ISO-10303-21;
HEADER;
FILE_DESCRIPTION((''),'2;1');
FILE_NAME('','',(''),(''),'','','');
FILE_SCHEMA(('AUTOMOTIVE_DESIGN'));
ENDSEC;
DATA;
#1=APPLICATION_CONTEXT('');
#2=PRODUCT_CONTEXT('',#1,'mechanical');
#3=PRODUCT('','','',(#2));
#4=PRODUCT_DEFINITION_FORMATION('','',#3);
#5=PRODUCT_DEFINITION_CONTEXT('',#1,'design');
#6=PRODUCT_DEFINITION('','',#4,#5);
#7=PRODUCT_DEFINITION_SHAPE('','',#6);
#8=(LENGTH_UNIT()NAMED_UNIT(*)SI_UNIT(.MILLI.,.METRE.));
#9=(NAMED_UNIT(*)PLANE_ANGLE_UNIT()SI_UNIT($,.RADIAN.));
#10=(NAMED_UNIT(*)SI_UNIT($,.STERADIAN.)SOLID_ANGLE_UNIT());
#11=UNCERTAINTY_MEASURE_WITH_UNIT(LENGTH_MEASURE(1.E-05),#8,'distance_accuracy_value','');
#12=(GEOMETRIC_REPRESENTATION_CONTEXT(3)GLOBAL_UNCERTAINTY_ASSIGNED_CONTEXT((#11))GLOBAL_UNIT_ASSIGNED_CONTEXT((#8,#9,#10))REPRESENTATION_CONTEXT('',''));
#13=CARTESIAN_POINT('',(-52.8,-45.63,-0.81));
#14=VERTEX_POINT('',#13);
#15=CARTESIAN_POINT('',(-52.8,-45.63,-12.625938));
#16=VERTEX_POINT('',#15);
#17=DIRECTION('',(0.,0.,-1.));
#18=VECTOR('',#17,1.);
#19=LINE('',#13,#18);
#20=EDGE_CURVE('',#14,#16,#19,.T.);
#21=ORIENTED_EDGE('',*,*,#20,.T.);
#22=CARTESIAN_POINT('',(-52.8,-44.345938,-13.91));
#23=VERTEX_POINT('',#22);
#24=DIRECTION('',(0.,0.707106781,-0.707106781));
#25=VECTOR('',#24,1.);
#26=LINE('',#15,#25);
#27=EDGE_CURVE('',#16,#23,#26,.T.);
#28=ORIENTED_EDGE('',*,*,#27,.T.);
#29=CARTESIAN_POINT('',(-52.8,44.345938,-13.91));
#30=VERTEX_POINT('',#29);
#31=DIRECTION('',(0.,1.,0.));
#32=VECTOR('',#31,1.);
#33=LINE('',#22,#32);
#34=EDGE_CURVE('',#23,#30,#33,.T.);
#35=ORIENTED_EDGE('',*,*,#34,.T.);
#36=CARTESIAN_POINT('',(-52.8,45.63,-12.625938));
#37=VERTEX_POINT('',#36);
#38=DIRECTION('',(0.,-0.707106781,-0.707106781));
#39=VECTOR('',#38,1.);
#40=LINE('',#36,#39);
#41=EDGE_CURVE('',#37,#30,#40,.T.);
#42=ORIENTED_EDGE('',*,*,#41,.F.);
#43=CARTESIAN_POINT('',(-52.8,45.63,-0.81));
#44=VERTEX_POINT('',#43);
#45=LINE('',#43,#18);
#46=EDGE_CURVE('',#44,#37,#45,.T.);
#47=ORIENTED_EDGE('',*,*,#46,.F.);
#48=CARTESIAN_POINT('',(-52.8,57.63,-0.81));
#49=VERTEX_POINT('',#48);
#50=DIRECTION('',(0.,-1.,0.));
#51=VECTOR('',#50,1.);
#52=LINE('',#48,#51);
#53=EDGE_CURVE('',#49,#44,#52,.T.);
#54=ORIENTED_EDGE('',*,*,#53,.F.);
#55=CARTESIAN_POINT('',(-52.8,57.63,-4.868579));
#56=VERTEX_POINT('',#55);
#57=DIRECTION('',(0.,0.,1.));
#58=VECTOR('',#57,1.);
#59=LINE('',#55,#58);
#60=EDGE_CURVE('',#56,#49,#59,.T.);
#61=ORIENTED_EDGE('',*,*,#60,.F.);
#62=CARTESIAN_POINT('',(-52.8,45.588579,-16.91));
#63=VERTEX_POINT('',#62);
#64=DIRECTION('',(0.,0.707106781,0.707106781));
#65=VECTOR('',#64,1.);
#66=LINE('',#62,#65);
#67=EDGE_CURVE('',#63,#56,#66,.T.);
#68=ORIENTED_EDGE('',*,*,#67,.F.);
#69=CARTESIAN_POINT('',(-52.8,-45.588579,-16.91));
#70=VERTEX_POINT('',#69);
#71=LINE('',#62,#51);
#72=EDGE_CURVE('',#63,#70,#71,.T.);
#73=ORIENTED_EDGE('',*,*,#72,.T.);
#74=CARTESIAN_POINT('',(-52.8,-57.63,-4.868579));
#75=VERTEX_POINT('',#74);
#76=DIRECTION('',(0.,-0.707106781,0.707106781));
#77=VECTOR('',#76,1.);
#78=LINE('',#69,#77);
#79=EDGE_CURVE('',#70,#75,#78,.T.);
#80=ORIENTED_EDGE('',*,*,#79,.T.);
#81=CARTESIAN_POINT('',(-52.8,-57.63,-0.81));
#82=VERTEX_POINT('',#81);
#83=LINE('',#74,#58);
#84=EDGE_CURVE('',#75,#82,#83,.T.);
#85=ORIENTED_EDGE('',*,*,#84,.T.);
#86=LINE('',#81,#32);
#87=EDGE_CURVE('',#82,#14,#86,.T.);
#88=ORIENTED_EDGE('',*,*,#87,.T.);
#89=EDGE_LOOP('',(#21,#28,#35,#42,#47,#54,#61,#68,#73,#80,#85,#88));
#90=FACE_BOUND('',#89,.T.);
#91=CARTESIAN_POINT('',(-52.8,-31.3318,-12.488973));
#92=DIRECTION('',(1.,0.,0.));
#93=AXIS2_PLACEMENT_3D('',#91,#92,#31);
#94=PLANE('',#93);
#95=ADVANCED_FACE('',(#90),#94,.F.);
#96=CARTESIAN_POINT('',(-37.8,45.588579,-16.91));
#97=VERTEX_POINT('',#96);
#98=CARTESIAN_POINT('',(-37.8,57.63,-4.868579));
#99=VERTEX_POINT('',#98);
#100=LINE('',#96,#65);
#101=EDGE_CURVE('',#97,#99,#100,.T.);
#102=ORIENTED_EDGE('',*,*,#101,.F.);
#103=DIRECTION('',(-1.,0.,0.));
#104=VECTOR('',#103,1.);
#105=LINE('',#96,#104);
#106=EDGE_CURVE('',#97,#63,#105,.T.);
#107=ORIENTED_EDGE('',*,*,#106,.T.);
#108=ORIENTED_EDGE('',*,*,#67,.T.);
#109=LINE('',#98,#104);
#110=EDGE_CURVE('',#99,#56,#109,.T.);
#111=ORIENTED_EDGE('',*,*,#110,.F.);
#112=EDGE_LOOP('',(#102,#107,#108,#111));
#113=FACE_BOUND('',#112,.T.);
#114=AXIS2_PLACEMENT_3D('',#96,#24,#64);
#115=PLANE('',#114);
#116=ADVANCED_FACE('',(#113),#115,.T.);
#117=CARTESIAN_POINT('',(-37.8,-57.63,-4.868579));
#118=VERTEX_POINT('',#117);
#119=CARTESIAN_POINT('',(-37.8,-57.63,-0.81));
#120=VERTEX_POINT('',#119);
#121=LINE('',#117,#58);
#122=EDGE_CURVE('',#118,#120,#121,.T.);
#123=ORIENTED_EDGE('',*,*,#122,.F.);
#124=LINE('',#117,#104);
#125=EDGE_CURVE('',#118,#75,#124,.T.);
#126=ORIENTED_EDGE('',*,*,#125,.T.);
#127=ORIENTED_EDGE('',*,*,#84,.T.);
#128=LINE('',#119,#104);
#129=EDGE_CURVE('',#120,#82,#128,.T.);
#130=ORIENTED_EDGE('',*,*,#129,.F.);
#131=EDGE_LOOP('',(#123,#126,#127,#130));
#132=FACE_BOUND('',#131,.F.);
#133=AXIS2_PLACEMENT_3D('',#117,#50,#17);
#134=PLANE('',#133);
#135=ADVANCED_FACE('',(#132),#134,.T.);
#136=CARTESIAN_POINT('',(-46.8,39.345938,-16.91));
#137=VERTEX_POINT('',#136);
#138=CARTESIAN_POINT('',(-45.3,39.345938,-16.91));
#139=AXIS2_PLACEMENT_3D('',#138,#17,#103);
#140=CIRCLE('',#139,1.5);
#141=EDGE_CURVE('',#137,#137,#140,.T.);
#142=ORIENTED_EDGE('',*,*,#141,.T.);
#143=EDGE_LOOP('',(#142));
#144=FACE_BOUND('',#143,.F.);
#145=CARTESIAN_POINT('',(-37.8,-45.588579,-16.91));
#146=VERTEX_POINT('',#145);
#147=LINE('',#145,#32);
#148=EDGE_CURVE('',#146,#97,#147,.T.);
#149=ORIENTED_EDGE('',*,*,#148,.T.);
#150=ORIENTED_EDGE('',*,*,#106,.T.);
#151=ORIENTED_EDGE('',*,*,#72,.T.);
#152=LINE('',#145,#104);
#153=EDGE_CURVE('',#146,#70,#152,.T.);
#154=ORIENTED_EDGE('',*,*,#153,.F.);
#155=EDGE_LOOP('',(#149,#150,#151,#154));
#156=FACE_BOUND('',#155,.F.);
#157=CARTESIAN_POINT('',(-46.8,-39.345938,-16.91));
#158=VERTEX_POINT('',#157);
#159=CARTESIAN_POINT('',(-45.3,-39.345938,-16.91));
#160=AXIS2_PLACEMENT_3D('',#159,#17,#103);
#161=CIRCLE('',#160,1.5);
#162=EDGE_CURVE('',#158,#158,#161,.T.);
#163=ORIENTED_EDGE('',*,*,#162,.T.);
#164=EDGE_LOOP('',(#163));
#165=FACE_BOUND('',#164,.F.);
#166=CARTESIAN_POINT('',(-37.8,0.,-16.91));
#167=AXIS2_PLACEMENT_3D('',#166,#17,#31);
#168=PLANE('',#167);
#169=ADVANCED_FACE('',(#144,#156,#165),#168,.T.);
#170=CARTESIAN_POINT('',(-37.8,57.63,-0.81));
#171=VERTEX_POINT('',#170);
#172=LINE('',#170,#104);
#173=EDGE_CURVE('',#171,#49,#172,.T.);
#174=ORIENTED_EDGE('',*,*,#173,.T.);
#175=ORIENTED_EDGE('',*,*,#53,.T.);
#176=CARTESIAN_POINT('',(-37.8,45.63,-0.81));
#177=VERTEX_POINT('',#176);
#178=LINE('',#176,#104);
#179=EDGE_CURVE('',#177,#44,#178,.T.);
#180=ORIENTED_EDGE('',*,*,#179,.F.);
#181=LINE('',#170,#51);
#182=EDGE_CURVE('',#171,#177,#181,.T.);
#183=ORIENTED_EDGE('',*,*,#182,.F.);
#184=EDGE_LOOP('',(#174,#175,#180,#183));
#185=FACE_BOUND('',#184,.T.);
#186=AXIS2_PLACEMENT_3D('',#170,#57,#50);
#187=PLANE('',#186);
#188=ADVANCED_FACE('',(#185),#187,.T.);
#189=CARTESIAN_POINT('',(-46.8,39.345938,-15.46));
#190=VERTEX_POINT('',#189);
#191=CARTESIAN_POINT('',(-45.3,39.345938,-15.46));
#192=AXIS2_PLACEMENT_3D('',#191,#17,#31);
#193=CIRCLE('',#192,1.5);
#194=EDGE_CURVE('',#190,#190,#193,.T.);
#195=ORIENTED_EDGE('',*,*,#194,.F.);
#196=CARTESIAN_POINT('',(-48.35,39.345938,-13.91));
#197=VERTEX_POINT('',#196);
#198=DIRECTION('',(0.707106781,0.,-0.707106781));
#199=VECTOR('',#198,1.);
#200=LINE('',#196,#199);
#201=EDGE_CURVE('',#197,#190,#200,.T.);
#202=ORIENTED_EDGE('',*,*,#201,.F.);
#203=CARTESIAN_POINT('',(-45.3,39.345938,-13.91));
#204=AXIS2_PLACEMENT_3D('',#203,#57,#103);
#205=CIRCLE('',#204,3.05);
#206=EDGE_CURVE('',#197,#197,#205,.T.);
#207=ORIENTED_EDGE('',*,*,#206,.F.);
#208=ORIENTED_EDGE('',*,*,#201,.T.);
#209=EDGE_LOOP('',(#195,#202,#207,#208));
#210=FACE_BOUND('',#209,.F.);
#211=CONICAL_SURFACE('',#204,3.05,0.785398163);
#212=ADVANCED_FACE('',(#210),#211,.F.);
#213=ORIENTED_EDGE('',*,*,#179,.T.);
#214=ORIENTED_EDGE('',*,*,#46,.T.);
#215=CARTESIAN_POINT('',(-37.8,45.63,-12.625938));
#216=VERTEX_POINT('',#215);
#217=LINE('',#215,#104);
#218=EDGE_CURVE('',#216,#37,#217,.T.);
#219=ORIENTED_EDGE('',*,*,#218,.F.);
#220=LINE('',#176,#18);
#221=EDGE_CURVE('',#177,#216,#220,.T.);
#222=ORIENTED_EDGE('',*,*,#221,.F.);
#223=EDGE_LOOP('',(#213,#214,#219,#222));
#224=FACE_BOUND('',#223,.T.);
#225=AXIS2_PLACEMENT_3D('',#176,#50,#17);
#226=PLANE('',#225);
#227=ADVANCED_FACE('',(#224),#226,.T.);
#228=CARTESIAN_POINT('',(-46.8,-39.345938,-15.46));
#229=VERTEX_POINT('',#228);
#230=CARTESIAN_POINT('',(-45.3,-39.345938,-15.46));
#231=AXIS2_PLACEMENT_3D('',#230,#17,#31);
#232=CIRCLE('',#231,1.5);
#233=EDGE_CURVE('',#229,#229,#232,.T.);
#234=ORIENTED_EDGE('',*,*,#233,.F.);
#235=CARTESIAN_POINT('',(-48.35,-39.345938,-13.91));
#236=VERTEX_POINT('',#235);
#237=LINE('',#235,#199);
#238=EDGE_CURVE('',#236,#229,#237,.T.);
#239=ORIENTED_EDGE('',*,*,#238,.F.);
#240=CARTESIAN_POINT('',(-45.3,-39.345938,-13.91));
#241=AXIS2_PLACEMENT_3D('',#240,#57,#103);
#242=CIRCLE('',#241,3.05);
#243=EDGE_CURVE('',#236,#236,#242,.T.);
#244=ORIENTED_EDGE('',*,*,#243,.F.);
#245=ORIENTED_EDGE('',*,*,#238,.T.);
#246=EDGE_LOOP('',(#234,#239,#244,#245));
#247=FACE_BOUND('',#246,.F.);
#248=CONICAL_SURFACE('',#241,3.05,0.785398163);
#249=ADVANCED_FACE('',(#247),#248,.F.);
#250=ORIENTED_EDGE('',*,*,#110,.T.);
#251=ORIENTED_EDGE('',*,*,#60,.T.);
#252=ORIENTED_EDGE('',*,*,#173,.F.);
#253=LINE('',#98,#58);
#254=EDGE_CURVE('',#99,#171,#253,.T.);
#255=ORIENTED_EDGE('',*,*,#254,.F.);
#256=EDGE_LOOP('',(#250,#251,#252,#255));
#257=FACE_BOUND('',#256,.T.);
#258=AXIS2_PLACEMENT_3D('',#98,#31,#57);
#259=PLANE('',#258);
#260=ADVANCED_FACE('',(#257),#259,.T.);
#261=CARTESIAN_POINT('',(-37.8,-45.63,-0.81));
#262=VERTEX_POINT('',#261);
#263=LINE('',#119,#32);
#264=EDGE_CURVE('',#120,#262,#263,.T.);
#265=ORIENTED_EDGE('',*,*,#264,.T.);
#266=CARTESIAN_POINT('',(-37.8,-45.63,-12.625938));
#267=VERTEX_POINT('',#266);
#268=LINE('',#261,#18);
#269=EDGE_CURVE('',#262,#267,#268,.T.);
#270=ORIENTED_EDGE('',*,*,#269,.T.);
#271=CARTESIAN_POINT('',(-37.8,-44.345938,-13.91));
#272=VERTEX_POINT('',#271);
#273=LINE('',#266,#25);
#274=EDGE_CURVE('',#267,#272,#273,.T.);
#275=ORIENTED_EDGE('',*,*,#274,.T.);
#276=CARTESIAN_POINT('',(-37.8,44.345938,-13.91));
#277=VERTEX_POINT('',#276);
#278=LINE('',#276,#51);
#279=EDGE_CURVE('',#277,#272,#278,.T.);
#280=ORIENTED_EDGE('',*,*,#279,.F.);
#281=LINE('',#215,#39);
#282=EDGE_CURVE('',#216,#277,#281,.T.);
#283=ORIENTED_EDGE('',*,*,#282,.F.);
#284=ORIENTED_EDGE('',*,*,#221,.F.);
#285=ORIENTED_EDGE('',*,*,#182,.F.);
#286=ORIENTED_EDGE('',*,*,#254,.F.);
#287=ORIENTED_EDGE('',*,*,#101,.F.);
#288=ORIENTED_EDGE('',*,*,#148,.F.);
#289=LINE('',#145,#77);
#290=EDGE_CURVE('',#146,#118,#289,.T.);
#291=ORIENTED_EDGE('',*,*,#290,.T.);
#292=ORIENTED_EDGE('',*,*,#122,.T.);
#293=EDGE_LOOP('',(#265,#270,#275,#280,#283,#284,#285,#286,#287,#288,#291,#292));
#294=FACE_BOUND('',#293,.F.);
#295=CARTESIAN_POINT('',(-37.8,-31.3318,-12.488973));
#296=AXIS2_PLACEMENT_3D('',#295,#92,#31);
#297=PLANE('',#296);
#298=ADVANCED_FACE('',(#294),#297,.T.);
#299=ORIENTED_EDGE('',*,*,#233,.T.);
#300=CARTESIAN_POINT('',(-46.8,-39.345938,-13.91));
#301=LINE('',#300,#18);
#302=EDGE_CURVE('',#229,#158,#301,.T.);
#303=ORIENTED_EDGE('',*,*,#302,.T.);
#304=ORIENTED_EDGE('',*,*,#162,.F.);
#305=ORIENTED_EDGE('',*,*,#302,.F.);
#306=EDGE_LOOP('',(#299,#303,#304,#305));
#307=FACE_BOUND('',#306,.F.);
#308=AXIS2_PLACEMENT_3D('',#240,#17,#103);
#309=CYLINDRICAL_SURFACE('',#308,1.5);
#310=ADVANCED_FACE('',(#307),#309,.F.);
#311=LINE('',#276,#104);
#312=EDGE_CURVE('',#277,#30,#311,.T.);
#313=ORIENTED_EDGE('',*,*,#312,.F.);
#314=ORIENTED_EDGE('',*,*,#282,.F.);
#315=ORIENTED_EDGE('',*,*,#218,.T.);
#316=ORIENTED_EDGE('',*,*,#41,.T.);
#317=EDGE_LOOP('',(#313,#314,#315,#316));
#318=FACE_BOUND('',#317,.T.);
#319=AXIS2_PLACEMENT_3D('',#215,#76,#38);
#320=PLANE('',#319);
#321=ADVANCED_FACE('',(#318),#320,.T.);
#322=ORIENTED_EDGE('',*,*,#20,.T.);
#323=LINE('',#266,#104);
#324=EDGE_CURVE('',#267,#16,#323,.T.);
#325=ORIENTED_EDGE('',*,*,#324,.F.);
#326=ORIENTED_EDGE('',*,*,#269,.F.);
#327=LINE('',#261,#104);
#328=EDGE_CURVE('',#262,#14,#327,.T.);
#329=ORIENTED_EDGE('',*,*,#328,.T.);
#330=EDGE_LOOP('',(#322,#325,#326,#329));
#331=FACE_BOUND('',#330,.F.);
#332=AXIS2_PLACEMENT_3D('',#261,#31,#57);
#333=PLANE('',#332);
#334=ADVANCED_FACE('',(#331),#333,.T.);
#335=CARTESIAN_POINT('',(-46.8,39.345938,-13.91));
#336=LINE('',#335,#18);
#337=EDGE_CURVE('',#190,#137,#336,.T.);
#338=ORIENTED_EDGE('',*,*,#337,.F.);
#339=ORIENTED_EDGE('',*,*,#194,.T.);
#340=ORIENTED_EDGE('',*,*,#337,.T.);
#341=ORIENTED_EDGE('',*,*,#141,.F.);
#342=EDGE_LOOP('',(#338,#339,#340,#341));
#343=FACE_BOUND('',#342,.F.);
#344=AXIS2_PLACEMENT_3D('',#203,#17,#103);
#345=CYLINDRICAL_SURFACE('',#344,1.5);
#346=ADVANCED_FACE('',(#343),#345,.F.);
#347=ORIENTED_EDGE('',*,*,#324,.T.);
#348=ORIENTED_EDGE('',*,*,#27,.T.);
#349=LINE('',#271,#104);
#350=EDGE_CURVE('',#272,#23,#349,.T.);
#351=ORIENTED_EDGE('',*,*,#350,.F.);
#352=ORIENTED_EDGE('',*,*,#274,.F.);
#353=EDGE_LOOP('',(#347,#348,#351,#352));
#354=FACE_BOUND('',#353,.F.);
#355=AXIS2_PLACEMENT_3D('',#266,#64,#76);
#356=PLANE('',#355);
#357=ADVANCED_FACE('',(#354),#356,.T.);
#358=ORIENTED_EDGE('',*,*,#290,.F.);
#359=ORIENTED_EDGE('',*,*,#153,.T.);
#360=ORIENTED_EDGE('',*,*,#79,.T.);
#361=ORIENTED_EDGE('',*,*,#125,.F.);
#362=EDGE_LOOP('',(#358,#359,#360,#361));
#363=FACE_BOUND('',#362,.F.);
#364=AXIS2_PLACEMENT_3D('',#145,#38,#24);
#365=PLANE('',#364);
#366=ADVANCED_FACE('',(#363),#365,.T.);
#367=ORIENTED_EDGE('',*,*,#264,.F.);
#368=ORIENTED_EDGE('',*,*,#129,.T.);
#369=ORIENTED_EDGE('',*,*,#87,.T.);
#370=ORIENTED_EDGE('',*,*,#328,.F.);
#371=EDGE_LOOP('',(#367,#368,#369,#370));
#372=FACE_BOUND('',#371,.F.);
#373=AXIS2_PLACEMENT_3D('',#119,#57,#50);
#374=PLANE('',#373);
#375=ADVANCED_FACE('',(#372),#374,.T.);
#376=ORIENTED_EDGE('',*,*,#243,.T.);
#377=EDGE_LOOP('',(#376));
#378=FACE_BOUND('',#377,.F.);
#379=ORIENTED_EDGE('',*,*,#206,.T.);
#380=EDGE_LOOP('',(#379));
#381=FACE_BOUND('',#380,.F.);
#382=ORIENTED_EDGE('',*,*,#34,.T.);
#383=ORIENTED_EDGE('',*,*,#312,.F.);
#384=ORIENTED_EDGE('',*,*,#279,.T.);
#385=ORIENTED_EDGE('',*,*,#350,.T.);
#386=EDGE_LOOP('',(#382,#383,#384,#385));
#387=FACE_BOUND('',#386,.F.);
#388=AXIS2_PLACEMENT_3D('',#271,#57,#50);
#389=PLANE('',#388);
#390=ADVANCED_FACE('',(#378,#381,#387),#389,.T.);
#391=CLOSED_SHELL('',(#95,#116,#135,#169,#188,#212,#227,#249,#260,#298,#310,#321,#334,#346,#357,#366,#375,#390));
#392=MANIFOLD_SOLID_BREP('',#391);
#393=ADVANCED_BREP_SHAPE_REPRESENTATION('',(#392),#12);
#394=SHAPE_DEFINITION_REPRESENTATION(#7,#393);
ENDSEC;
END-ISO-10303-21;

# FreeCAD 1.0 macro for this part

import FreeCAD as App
import Part
import Sketcher
Q = App.Units.Quantity


def add_polygon(sketch, points):
    """Adds a closed chain of lines whose ends are joined by coincident constraints."""
    first, n = sketch.GeometryCount, len(points)
    for a, b in zip(points, points[1:] + points[:1]):
        sketch.addGeometry(Part.LineSegment(App.Vector(*a, 0), App.Vector(*b, 0)), False)
    for i in range(n):
        sketch.addConstraint(Sketcher.Constraint("Coincident", first + i, 2, first + (i + 1) % n, 1))

doc = App.newDocument("Part")
body = doc.addObject("PartDesign::Body", "Body")

# Sketch on YZ plane
sketch1 = doc.addObject("Sketcher::SketchObject", "Sketch")
body.addObject(sketch1)
sketch1.AttachmentSupport = (doc.YZ_Plane, [""])
sketch1.MapMode = "FlatFace"
sketch1.AttachmentOffset = App.Placement(App.Vector(0, 0, 87.2), App.Rotation())
add_polygon(sketch1, [(57.6, -0.8), (57.6, -4.9), (45.6, -16.9), (0, -16.9), (0, -13.9), (44.3, -13.9), (45.6, -12.6), (45.6, -0.8)])  # lines 0-7
sketch1.addConstraint(Sketcher.Constraint("Vertical", 0))
sketch1.addConstraint(Sketcher.Constraint("Horizontal", 2))
sketch1.addConstraint(Sketcher.Constraint("Vertical", 3))
sketch1.addConstraint(Sketcher.Constraint("Horizontal", 4))
sketch1.addConstraint(Sketcher.Constraint("Vertical", 6))
sketch1.addConstraint(Sketcher.Constraint("Horizontal", 7))
sketch1.addConstraint(Sketcher.Constraint("PointOnObject", 2, 2, -2))
sketch1.addConstraint(Sketcher.Constraint("Parallel", 1, 5))
sketch1.addConstraint(Sketcher.Constraint("DistanceX", 7, 1, 7, 2, Q("12 mm")))
sketch1.addConstraint(Sketcher.Constraint("DistanceY", 3, 1, 3, 2, Q("3 mm")))
sketch1.addConstraint(Sketcher.Constraint("Angle", 1, Q("-135 deg")))
sketch1.addConstraint(Sketcher.Constraint("DistanceY", 4, 2, 6, 2, Q("13.1 mm")))
sketch1.addConstraint(Sketcher.Constraint("DistanceX", -1, 1, 0, 2, Q("57.63 mm")))
sketch1.addConstraint(Sketcher.Constraint("DistanceY", 1, 2, -1, 1, Q("16.91 mm")))
sketch1.addConstraint(Sketcher.Constraint("DistanceX", 2, 2, 2, 1, Q("45.588579 mm")))
sketch1.addConstraint(Sketcher.Constraint("DistanceX", 4, 1, 4, 2, Q("44.345938 mm")))
pad1 = doc.addObject("PartDesign::Pad", "Pad")
body.addObject(pad1)
pad1.Profile = sketch1
pad1.Length = 15
pad1.Reversed = True
doc.recompute()

mirrored = doc.addObject("PartDesign::Mirrored", "Mirrored")
body.addObject(mirrored)
mirrored.Originals = [pad1]
mirrored.MirrorPlane = (doc.XZ_Plane, [""])
body.Tip = mirrored

# Sketch on XY plane
sketch2 = doc.addObject("Sketcher::SketchObject", "Sketch001")
body.addObject(sketch2)
sketch2.AttachmentSupport = (doc.XY_Plane, [""])
sketch2.MapMode = "FlatFace"
sketch2.AttachmentOffset = App.Placement(App.Vector(0, 0, -13.91), App.Rotation())
sketch2.addGeometry(Part.Circle(App.Vector(79.7, 39.3, 0), App.Vector(0, 0, 1), 1.5), False)
sketch2.addGeometry(Part.Circle(App.Vector(79.7, -39.3, 0), App.Vector(0, 0, 1), 1.5), False)
sketch2.addConstraint(Sketcher.Constraint("Equal", 0, 1))
sketch2.addConstraint(Sketcher.Constraint("Symmetric", 0, 3, 1, 3, -1))
sketch2.addConstraint(Sketcher.Constraint("Diameter", 0, Q("3 mm")))
sketch2.addConstraint(Sketcher.Constraint("DistanceX", -1, 1, 0, 3, Q("79.7 mm")))
sketch2.addConstraint(Sketcher.Constraint("DistanceY", -1, 1, 0, 3, Q("39.345938 mm")))
doc.recompute()
hole = doc.addObject("PartDesign::Hole", "Hole")
body.addObject(hole)
hole.Profile = sketch2
hole.ThreadType = "None"
hole.Diameter = 3
hole.DepthType = "Dimension"
hole.Depth = 25
hole.DrillPoint = "Flat"
hole.HoleCutType = "Countersink"
hole.HoleCutDiameter = 6.1
hole.HoleCutCountersinkAngle = 90

# Sketch on XY plane
sketch3 = doc.addObject("Sketcher::SketchObject", "Sketch002")
body.addObject(sketch3)
sketch3.AttachmentSupport = (doc.XY_Plane, [""])
sketch3.MapMode = "FlatFace"
sketch3.AttachmentOffset = App.Placement(App.Vector(0, 0, -13.91), App.Rotation())
sketch3.addGeometry(Part.Circle(App.Vector(79.7, 39.3, 0), App.Vector(0, 0, 1), 1.5), False)
sketch3.addGeometry(Part.Circle(App.Vector(79.7, -39.3, 0), App.Vector(0, 0, 1), 1.5), False)
sketch3.addConstraint(Sketcher.Constraint("Equal", 0, 1))
sketch3.addConstraint(Sketcher.Constraint("Symmetric", 0, 3, 1, 3, -1))
sketch3.addConstraint(Sketcher.Constraint("Diameter", 0, Q("3 mm")))
sketch3.addConstraint(Sketcher.Constraint("DistanceX", -1, 1, 0, 3, Q("79.7 mm")))
sketch3.addConstraint(Sketcher.Constraint("DistanceY", -1, 1, 0, 3, Q("39.345938 mm")))
doc.recompute()
hole2 = doc.addObject("PartDesign::Hole", "Hole001")
body.addObject(hole2)
hole2.Profile = sketch3
hole2.ThreadType = "None"
hole2.Diameter = 3
hole2.DepthType = "Dimension"
hole2.Depth = 25
hole2.DrillPoint = "Flat"
hole2.HoleCutType = "Countersink"
hole2.HoleCutDiameter = 6.1
hole2.HoleCutCountersinkAngle = 90
body2 = doc.addObject("PartDesign::Body", "Body001")
doc.recompute()

body.Placement = App.Placement(App.Vector(-125, 0, 0), App.Rotation(App.Vector(0, 0, 1), 0))
boolean = doc.addObject("PartDesign::Boolean", "Boolean")
body2.addObject(boolean)
boolean.Type = "Fuse"
boolean.addObjects([body])

doc.recompute()
